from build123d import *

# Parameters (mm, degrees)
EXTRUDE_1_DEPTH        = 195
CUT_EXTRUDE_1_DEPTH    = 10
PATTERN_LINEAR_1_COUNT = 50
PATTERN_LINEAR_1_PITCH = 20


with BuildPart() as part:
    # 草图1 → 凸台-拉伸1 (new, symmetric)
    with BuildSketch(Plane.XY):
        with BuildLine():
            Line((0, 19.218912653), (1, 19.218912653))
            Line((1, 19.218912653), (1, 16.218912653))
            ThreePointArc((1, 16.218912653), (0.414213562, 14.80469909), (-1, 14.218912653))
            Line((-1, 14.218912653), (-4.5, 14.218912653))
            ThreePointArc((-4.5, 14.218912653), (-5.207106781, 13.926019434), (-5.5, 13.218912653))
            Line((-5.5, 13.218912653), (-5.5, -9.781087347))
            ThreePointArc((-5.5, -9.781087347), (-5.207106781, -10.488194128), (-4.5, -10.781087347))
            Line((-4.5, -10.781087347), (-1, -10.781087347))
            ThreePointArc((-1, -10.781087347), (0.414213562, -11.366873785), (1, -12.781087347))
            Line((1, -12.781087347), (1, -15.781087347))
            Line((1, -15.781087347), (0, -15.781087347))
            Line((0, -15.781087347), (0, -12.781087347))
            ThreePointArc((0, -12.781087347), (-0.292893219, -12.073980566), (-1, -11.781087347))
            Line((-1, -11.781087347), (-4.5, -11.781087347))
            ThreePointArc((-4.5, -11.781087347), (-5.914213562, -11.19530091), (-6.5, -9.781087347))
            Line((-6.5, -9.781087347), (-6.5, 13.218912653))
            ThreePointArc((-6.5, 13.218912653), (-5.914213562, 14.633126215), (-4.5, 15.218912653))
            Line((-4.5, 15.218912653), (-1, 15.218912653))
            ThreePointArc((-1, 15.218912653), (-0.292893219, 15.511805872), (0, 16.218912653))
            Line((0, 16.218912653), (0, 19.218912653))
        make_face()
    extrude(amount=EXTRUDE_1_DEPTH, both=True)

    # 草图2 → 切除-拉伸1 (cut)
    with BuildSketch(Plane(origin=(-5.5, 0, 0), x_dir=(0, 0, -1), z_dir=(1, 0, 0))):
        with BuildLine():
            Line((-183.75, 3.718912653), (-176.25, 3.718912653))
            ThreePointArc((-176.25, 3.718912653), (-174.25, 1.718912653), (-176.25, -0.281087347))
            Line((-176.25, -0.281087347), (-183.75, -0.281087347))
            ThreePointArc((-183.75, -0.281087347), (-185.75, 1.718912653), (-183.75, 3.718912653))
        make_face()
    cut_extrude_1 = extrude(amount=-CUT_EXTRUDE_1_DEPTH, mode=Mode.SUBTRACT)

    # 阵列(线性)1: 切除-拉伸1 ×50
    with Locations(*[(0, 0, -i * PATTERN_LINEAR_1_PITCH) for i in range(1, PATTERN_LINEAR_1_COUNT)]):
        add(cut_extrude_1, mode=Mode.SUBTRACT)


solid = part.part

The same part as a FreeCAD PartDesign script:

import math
import FreeCAD as App
import Part
import Sketcher

V = App.Vector
Q = App.Units.Quantity

doc = App.newDocument("Part")
body = doc.addObject("PartDesign::Body", "Body")

# Sketch on XY plane
sketch1 = body.newObject("Sketcher::SketchObject", "Sketch")
sketch1.AttachmentSupport = (doc.getObject("XY_Plane"), [""])
sketch1.MapMode = "FlatFace"
sketch1.addGeometry([
    Part.LineSegment(V(1, 19.2, 0), V(0, 19.2, 0)),  # 0
    Part.LineSegment(V(0, 19.2, 0), V(0, 16.2, 0)),  # 1
    Part.ArcOfCircle(Part.Circle(V(-1, 16.2, 0), V(0, 0, 1), 1), math.radians(-90), math.radians(0)),  # 2
    Part.LineSegment(V(-1, 15.2, 0), V(-4.5, 15.2, 0)),  # 3
    Part.ArcOfCircle(Part.Circle(V(-4.5, 13.2, 0), V(0, 0, 1), 2), math.radians(90), math.radians(180)),  # 4
    Part.LineSegment(V(-6.5, 13.2, 0), V(-6.5, -9.8, 0)),  # 5
    Part.ArcOfCircle(Part.Circle(V(-4.5, -9.8, 0), V(0, 0, 1), 2), math.radians(180), math.radians(270)),  # 6
    Part.LineSegment(V(-4.5, -11.8, 0), V(-1, -11.8, 0)),  # 7
    Part.ArcOfCircle(Part.Circle(V(-1, -12.8, 0), V(0, 0, 1), 1), math.radians(0), math.radians(90)),  # 8
    Part.LineSegment(V(0, -12.8, 0), V(0, -15.8, 0)),  # 9
    Part.LineSegment(V(0, -15.8, 0), V(1, -15.8, 0)),  # 10
    Part.LineSegment(V(1, -15.8, 0), V(1, -12.8, 0)),  # 11
    Part.ArcOfCircle(Part.Circle(V(-1, -12.8, 0), V(0, 0, 1), 2), math.radians(0), math.radians(90)),  # 12
    Part.LineSegment(V(-1, -10.8, 0), V(-4.5, -10.8, 0)),  # 13
    Part.ArcOfCircle(Part.Circle(V(-4.5, -9.8, 0), V(0, 0, 1), 1), math.radians(-180), math.radians(-90)),  # 14
    Part.LineSegment(V(-5.5, -9.8, 0), V(-5.5, 13.2, 0)),  # 15
    Part.ArcOfCircle(Part.Circle(V(-4.5, 13.2, 0), V(0, 0, 1), 1), math.radians(90), math.radians(180)),  # 16
    Part.LineSegment(V(-4.5, 14.2, 0), V(-1, 14.2, 0)),  # 17
    Part.ArcOfCircle(Part.Circle(V(-1, 16.2, 0), V(0, 0, 1), 2), math.radians(-90), math.radians(0)),  # 18
    Part.LineSegment(V(1, 16.2, 0), V(1, 19.2, 0)),  # 19
], False)
sketch1.addConstraint([
    Sketcher.Constraint("Coincident", 0, 2, 1, 1),
    Sketcher.Constraint("Tangent", 1, 2, 2, 2),
    Sketcher.Constraint("Tangent", 2, 1, 3, 1),
    Sketcher.Constraint("Tangent", 3, 2, 4, 1),
    Sketcher.Constraint("Tangent", 4, 2, 5, 1),
    Sketcher.Constraint("Tangent", 5, 2, 6, 1),
    Sketcher.Constraint("Tangent", 6, 2, 7, 1),
    Sketcher.Constraint("Tangent", 7, 2, 8, 2),
    Sketcher.Constraint("Tangent", 8, 1, 9, 1),
    Sketcher.Constraint("Coincident", 9, 2, 10, 1),
    Sketcher.Constraint("Coincident", 10, 2, 11, 1),
    Sketcher.Constraint("Tangent", 11, 2, 12, 1),
    Sketcher.Constraint("Tangent", 12, 2, 13, 1),
    Sketcher.Constraint("Tangent", 13, 2, 14, 2),
    Sketcher.Constraint("Tangent", 14, 1, 15, 1),
    Sketcher.Constraint("Tangent", 15, 2, 16, 2),
    Sketcher.Constraint("Tangent", 16, 1, 17, 1),
    Sketcher.Constraint("Tangent", 17, 2, 18, 1),
    Sketcher.Constraint("Tangent", 18, 2, 19, 1),
    Sketcher.Constraint("Coincident", 19, 2, 0, 1),
    Sketcher.Constraint("Horizontal", 0),
    Sketcher.Constraint("Vertical", 1),
    Sketcher.Constraint("Horizontal", 3),
    Sketcher.Constraint("Vertical", 5),
    Sketcher.Constraint("Horizontal", 7),
    Sketcher.Constraint("Vertical", 9),
    Sketcher.Constraint("Horizontal", 10),
    Sketcher.Constraint("Vertical", 11),
    Sketcher.Constraint("Horizontal", 13),
    Sketcher.Constraint("Vertical", 15),
    Sketcher.Constraint("Horizontal", 17),
    Sketcher.Constraint("Vertical", 19),
    Sketcher.Constraint("Coincident", 12, 3, 8, 3),
    Sketcher.Constraint("Coincident", 14, 3, 6, 3),
    Sketcher.Constraint("Coincident", 16, 3, 4, 3),
    Sketcher.Constraint("Coincident", 18, 3, 2, 3),
    Sketcher.Constraint("Equal", 4, 6),
    Sketcher.Constraint("Equal", 2, 8),
    Sketcher.Constraint("Equal", 6, 12),
    Sketcher.Constraint("PointOnObject", 0, 2, -2),
    Sketcher.Constraint("PointOnObject", 8, 1, -2),
    Sketcher.Constraint("Equal", 1, 9),
    Sketcher.Constraint("Radius", 2, Q("1 mm")),
    Sketcher.Constraint("Radius", 4, Q("2 mm")),
    Sketcher.Constraint("DistanceY", 1, 2, 1, 1, Q("3 mm")),
    Sketcher.Constraint("DistanceY", 5, 2, 5, 1, Q("23 mm")),
    Sketcher.Constraint("DistanceX", 3, 2, 3, 1, Q("3.5 mm")),
    Sketcher.Constraint("DistanceY", -1, 1, 2, 3, Q("16.218913 mm")),
])
pad1 = body.newObject("PartDesign::Pad", "Pad")
pad1.Profile = sketch1
pad1.Length = 390
pad1.Midplane = True

# Sketch on YZ plane
sketch2 = body.newObject("Sketcher::SketchObject", "Sketch001")
sketch2.AttachmentSupport = (doc.getObject("YZ_Plane"), [""])
sketch2.MapMode = "FlatFace"
sketch2.AttachmentOffset = App.Placement(V(0, 0, -5.5), App.Rotation())
sketch2.addGeometry([
    Part.LineSegment(V(3.7, 176.2, 0), V(3.7, 183.8, 0)),
    Part.ArcOfCircle(Part.Circle(V(1.7, 183.8, 0), V(0, 0, 1), 2), math.radians(0), math.radians(180)),
    Part.LineSegment(V(-0.3, 183.8, 0), V(-0.3, 176.2, 0)),
    Part.ArcOfCircle(Part.Circle(V(1.7, 176.2, 0), V(0, 0, 1), 2), math.radians(180), math.radians(360)),
], False)
sketch2.addConstraint([
    Sketcher.Constraint("Tangent", 0, 2, 1, 1),
    Sketcher.Constraint("Tangent", 1, 2, 2, 1),
    Sketcher.Constraint("Tangent", 2, 2, 3, 1),
    Sketcher.Constraint("Tangent", 3, 2, 0, 1),
    Sketcher.Constraint("Vertical", 0),
    Sketcher.Constraint("Vertical", 2),
    Sketcher.Constraint("Radius", 1, Q("2 mm")),
    Sketcher.Constraint("DistanceY", 0, 1, 0, 2, Q("7.5 mm")),
    Sketcher.Constraint("DistanceY", -1, 1, 1, 3, Q("183.75 mm")),
    Sketcher.Constraint("DistanceX", -1, 1, 1, 3, Q("1.718913 mm")),
])
pocket1 = body.newObject("PartDesign::Pocket", "Pocket")
pocket1.Profile = sketch2
pocket1.Length = 10
doc.recompute()

linearpattern = body.newObject("PartDesign::LinearPattern", "LinearPattern")
linearpattern.Originals = [pocket1]
linearpattern.Direction = (doc.getObject("Z_Axis"), [""])
linearpattern.Mode = "offset"
linearpattern.Offset = 20
linearpattern.Occurrences = 50
linearpattern.Reversed = True
body.Tip = linearpattern

doc.recompute()
